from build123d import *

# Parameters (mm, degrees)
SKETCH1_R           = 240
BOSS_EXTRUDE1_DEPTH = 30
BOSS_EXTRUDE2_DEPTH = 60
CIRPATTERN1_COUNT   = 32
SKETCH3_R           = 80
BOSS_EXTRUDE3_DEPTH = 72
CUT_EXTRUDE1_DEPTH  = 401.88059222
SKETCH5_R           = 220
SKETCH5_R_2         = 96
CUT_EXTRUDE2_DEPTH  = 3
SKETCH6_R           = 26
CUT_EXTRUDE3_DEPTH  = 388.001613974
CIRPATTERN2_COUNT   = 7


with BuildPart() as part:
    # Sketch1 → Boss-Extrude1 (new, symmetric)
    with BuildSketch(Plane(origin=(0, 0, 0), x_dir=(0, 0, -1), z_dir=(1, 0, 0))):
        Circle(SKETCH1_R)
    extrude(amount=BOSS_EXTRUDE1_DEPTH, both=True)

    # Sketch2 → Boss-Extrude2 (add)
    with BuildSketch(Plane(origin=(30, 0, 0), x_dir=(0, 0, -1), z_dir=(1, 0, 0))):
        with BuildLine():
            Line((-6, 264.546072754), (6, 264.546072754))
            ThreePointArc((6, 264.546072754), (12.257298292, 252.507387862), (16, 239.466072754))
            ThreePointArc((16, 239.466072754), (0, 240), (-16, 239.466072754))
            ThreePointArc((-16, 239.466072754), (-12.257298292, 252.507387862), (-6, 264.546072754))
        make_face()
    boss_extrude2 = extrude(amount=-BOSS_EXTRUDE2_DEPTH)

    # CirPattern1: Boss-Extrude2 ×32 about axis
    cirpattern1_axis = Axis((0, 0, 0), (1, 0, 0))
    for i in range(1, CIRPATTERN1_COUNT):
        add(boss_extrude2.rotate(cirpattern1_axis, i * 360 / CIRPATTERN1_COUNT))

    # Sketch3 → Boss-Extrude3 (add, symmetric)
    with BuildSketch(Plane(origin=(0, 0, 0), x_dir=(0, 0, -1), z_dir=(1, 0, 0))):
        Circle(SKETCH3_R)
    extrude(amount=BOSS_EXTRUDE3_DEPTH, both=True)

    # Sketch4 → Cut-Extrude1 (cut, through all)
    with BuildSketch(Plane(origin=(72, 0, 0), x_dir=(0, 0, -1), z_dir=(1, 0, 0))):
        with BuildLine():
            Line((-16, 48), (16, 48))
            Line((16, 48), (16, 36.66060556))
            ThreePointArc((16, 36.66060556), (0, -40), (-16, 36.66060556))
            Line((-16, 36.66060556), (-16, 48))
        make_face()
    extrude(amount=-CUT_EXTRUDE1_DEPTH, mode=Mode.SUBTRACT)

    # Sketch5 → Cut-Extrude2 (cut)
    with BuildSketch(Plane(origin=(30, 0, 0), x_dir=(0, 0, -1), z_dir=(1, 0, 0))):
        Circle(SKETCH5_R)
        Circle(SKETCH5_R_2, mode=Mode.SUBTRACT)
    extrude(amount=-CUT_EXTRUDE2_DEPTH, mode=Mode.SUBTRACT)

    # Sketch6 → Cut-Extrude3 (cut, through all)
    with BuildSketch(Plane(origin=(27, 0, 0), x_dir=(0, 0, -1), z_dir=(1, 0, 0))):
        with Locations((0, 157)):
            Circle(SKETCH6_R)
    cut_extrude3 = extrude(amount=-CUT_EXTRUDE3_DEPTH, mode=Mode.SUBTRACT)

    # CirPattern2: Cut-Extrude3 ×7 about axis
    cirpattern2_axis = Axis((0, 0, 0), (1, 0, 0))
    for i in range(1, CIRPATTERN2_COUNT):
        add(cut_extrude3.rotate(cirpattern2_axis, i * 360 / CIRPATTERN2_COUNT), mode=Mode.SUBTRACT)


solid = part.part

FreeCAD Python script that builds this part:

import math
import FreeCAD as App
import Part
import Sketcher

V = App.Vector

doc = App.newDocument("Part")
body = doc.addObject("PartDesign::Body", "Body")

sketch1 = body.newObject("Sketcher::SketchObject", "Sketch")
sketch1.AttachmentSupport = (doc.getObject("YZ_Plane"), [""])
sketch1.MapMode = "FlatFace"
sketch1.addGeometry(Part.Circle(V(0, 0, 0), V(0, 0, 1), 240), False)
sketch1.addConstraint([
    Sketcher.Constraint("Coincident", 0, 3, -1, 1),
    Sketcher.Constraint("Diameter", 0, 480.0),
])
pad1 = body.newObject("PartDesign::Pad", "Pad")
pad1.Profile = sketch1
pad1.Length = 60
pad1.Midplane = True

sketch2 = body.newObject("Sketcher::SketchObject", "Sketch001")
sketch2.AttachmentSupport = (doc.getObject("YZ_Plane"), [""])
sketch2.MapMode = "FlatFace"
sketch2.AttachmentOffset = App.Placement(V(0, 0, 30), App.Rotation())
sketch2.addGeometry([
    Part.LineSegment(V(265, -6, 0), V(265, 6, 0)),
    Part.ArcOfCircle(Part.Circle(V(227, -51, 0), V(0, 0, 1), 68), math.radians(57), math.radians(80)),
    Part.ArcOfCircle(Part.Circle(V(0, 0, 0), V(0, 0, 1), 240), math.radians(-3.82), math.radians(3.82)),
    Part.ArcOfCircle(Part.Circle(V(227, 51, 0), V(0, 0, 1), 68), math.radians(-80), math.radians(-57)),
], False)
sketch2.addConstraint([
    Sketcher.Constraint("Coincident", 0, 2, 1, 1),
    Sketcher.Constraint("Coincident", 1, 2, 2, 2),
    Sketcher.Constraint("Coincident", 2, 1, 3, 1),
    Sketcher.Constraint("Coincident", 3, 2, 0, 1),
    Sketcher.Constraint("Vertical", 0),
    Sketcher.Constraint("Coincident", 2, 3, -1, 1),
    Sketcher.Constraint("Equal", 1, 3),
    Sketcher.Constraint("Symmetric", 1, 3, 3, 3, -1),
    Sketcher.Constraint("Radius", 1, 68.0),
    Sketcher.Constraint("Radius", 2, 240.0),
    Sketcher.Constraint("DistanceY", 0, 1, 0, 2, 12.0),
    Sketcher.Constraint("DistanceY", -1, 1, 1, 2, 16.0),
    Sketcher.Constraint("DistanceX", 1, 2, 0, 2, 25.08),
])
pad2 = body.newObject("PartDesign::Pad", "Pad001")
pad2.Profile = sketch2
pad2.Length = 60
pad2.Reversed = True
doc.recompute()

polarpattern = body.newObject("PartDesign::PolarPattern", "PolarPattern")
polarpattern.Originals = [pad2]
polarpattern.Axis = (doc.getObject("X_Axis"), [""])
polarpattern.Angle = 360
polarpattern.Occurrences = 32
body.Tip = polarpattern

sketch3 = body.newObject("Sketcher::SketchObject", "Sketch002")
sketch3.AttachmentSupport = (doc.getObject("YZ_Plane"), [""])
sketch3.MapMode = "FlatFace"
sketch3.addGeometry(Part.Circle(V(0, 0, 0), V(0, 0, 1), 80), False)
sketch3.addConstraint([
    Sketcher.Constraint("Coincident", 0, 3, -1, 1),
    Sketcher.Constraint("Diameter", 0, 160.0),
])
pad3 = body.newObject("PartDesign::Pad", "Pad002")
pad3.Profile = sketch3
pad3.Length = 144
pad3.Midplane = True

sketch4 = body.newObject("Sketcher::SketchObject", "Sketch003")
sketch4.AttachmentSupport = (doc.getObject("YZ_Plane"), [""])
sketch4.MapMode = "FlatFace"
sketch4.AttachmentOffset = App.Placement(V(0, 0, 72), App.Rotation())
sketch4.addGeometry([
    Part.LineSegment(V(48, -16, 0), V(48, 16, 0)),
    Part.LineSegment(V(48, 16, 0), V(37, 16, 0)),
    Part.ArcOfCircle(Part.Circle(V(0, 0, 0), V(0, 0, 1), 40), math.radians(24), math.radians(336)),
    Part.LineSegment(V(37, -16, 0), V(48, -16, 0)),
], False)
sketch4.addConstraint([
    Sketcher.Constraint("Coincident", 0, 2, 1, 1),
    Sketcher.Constraint("Coincident", 1, 2, 2, 1),
    Sketcher.Constraint("Coincident", 2, 2, 3, 1),
    Sketcher.Constraint("Coincident", 3, 2, 0, 1),
    Sketcher.Constraint("Vertical", 0),
    Sketcher.Constraint("Horizontal", 1),
    Sketcher.Constraint("Horizontal", 3),
    Sketcher.Constraint("Coincident", 2, 3, -1, 1),
    Sketcher.Constraint("Vertical", 1, 2, 2, 2),
    Sketcher.Constraint("Radius", 2, 40.0),
    Sketcher.Constraint("DistanceY", 0, 1, 0, 2, 32.0),
    Sketcher.Constraint("DistanceX", -1, 1, 0, 2, 48.0),
])
pocket1 = body.newObject("PartDesign::Pocket", "Pocket")
pocket1.Profile = sketch4
pocket1.Type = "ThroughAll"

sketch5 = body.newObject("Sketcher::SketchObject", "Sketch004")
sketch5.AttachmentSupport = (doc.getObject("YZ_Plane"), [""])
sketch5.MapMode = "FlatFace"
sketch5.AttachmentOffset = App.Placement(V(0, 0, 30), App.Rotation())
sketch5.addGeometry([
    Part.Circle(V(0, 0, 0), V(0, 0, 1), 220),
    Part.Circle(V(0, 0, 0), V(0, 0, 1), 96),
], False)
sketch5.addConstraint([
    Sketcher.Constraint("Coincident", 0, 3, -1, 1),
    Sketcher.Constraint("Coincident", 1, 3, -1, 1),
    Sketcher.Constraint("Diameter", 0, 440.0),
    Sketcher.Constraint("Diameter", 1, 192.0),
])
pocket2 = body.newObject("PartDesign::Pocket", "Pocket001")
pocket2.Profile = sketch5
pocket2.Length = 3

sketch6 = body.newObject("Sketcher::SketchObject", "Sketch005")
sketch6.AttachmentSupport = (doc.getObject("YZ_Plane"), [""])
sketch6.MapMode = "FlatFace"
sketch6.AttachmentOffset = App.Placement(V(0, 0, 27), App.Rotation())
sketch6.addGeometry(Part.Circle(V(157, 0, 0), V(0, 0, 1), 26), False)
sketch6.addConstraint([
    Sketcher.Constraint("PointOnObject", 0, 3, -1),
    Sketcher.Constraint("Diameter", 0, 52.0),
    Sketcher.Constraint("DistanceX", -1, 1, 0, 3, 157.0),
])
pocket3 = body.newObject("PartDesign::Pocket", "Pocket002")
pocket3.Profile = sketch6
pocket3.Type = "ThroughAll"
doc.recompute()

polarpattern2 = body.newObject("PartDesign::PolarPattern", "PolarPattern001")
polarpattern2.Originals = [pocket3]
polarpattern2.Axis = (doc.getObject("X_Axis"), [""])
polarpattern2.Angle = 360
polarpattern2.Occurrences = 7
body.Tip = polarpattern2

doc.recompute()
